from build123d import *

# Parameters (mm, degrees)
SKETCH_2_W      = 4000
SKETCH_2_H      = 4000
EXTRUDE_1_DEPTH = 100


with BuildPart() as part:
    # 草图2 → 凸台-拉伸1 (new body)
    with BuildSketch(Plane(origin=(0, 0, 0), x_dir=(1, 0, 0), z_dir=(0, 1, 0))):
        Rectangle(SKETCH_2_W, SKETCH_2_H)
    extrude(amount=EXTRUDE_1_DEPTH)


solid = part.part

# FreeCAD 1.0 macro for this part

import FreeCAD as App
import Part
import Sketcher

V = App.Vector
Q = App.Units.Quantity

doc = App.newDocument("Part")
body = doc.addObject("PartDesign::Body", "Body")

sketch1 = doc.addObject("Sketcher::SketchObject", "Sketch")
body.addObject(sketch1)
sketch1.AttachmentSupport = (doc.XZ_Plane, [""])
sketch1.MapMode = "FlatFace"
sketch1.addGeometry([
    Part.LineSegment(V(-2000, -2000, 0), V(-2000, 2000, 0)),
    Part.LineSegment(V(-2000, 2000, 0), V(2000, 2000, 0)),
    Part.LineSegment(V(2000, 2000, 0), V(2000, -2000, 0)),
    Part.LineSegment(V(2000, -2000, 0), V(-2000, -2000, 0)),
], False)
sketch1.addConstraint([
    Sketcher.Constraint("Coincident", 0, 2, 1, 1),
    Sketcher.Constraint("Coincident", 1, 2, 2, 1),
    Sketcher.Constraint("Coincident", 2, 2, 3, 1),
    Sketcher.Constraint("Coincident", 3, 2, 0, 1),
    Sketcher.Constraint("Vertical", 0),
    Sketcher.Constraint("Horizontal", 1),
    Sketcher.Constraint("Vertical", 2),
    Sketcher.Constraint("Horizontal", 3),
    Sketcher.Constraint("Symmetric", 0, 2, 2, 2, -1, 1),
    Sketcher.Constraint("Equal", 3, 0),
    Sketcher.Constraint("DistanceX", 1, 1, 1, 2, Q("4000 mm")),
])
pad1 = doc.addObject("PartDesign::Pad", "Pad")
body.addObject(pad1)
pad1.Profile = sketch1
pad1.Length = 100
pad1.Reversed = True

doc.recompute()
